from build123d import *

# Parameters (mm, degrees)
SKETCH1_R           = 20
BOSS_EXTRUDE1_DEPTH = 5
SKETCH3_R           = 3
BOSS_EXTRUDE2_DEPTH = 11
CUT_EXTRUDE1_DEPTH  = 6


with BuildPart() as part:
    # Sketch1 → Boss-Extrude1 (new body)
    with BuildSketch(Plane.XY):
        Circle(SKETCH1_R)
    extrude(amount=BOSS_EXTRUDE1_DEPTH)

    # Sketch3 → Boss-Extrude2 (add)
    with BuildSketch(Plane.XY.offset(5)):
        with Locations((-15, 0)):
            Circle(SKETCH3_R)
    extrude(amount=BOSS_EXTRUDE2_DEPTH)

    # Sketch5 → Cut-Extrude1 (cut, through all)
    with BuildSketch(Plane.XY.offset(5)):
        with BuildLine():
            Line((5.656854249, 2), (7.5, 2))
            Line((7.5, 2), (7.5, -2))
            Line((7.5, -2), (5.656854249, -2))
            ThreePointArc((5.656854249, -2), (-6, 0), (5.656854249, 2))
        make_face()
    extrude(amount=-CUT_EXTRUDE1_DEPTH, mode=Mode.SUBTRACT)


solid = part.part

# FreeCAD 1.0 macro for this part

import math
import FreeCAD as App
import Part
import Sketcher

V = App.Vector
Q = App.Units.Quantity

doc = App.newDocument("Part")
body = doc.addObject("PartDesign::Body", "Body")

sketch1 = doc.addObject("Sketcher::SketchObject", "Sketch")
body.addObject(sketch1)
sketch1.AttachmentSupport = (doc.XY_Plane, [""])
sketch1.MapMode = "FlatFace"
sketch1.addGeometry(Part.Circle(V(0, 0, 0), V(0, 0, 1), 20), False)
sketch1.addConstraint(Sketcher.Constraint("Coincident", 0, 3, -1, 1))
sketch1.addConstraint(Sketcher.Constraint("Diameter", 0, Q("40 mm")))
pad1 = doc.addObject("PartDesign::Pad", "Pad")
body.addObject(pad1)
pad1.Profile = sketch1
pad1.Length = 5

sketch2 = doc.addObject("Sketcher::SketchObject", "Sketch001")
body.addObject(sketch2)
sketch2.AttachmentSupport = (doc.XY_Plane, [""])
sketch2.MapMode = "FlatFace"
sketch2.AttachmentOffset = App.Placement(V(0, 0, 5), App.Rotation())
sketch2.addGeometry(Part.Circle(V(-15, 0, 0), V(0, 0, 1), 3), False)
sketch2.addConstraint(Sketcher.Constraint("PointOnObject", 0, 3, -1))
sketch2.addConstraint(Sketcher.Constraint("Diameter", 0, Q("6 mm")))
sketch2.addConstraint(Sketcher.Constraint("DistanceX", 0, 3, -1, 1, Q("15 mm")))
pad2 = doc.addObject("PartDesign::Pad", "Pad001")
body.addObject(pad2)
pad2.Profile = sketch2
pad2.Length = 11

sketch3 = doc.addObject("Sketcher::SketchObject", "Sketch002")
body.addObject(sketch3)
sketch3.AttachmentSupport = (doc.XY_Plane, [""])
sketch3.MapMode = "FlatFace"
sketch3.AttachmentOffset = App.Placement(V(0, 0, 5), App.Rotation())
sketch3.addGeometry(Part.LineSegment(V(7.5, 2, 0), V(5.656854, 2, 0)), False)
sketch3.addGeometry(Part.ArcOfCircle(Part.Circle(V(0, 0, 0), V(0, 0, 1), 6), math.radians(19.471221), math.radians(340.528779)), False)
sketch3.addGeometry(Part.LineSegment(V(5.656854, -2, 0), V(7.5, -2, 0)), False)
sketch3.addGeometry(Part.LineSegment(V(7.5, -2, 0), V(7.5, 2, 0)), False)
sketch3.addConstraint(Sketcher.Constraint("Coincident", 0, 2, 1, 1))
sketch3.addConstraint(Sketcher.Constraint("Coincident", 1, 2, 2, 1))
sketch3.addConstraint(Sketcher.Constraint("Coincident", 2, 2, 3, 1))
sketch3.addConstraint(Sketcher.Constraint("Coincident", 3, 2, 0, 1))
sketch3.addConstraint(Sketcher.Constraint("Horizontal", 0))
sketch3.addConstraint(Sketcher.Constraint("Horizontal", 2))
sketch3.addConstraint(Sketcher.Constraint("Vertical", 3))
sketch3.addConstraint(Sketcher.Constraint("Coincident", 1, 3, -1, 1))
sketch3.addConstraint(Sketcher.Constraint("Vertical", 0, 2, 1, 2))
sketch3.addConstraint(Sketcher.Constraint("Radius", 1, Q("6 mm")))
sketch3.addConstraint(Sketcher.Constraint("DistanceY", 3, 1, 3, 2, Q("4 mm")))
sketch3.addConstraint(Sketcher.Constraint("DistanceX", -1, 1, 2, 2, Q("7.5 mm")))
pocket1 = doc.addObject("PartDesign::Pocket", "Pocket")
body.addObject(pocket1)
pocket1.Profile = sketch3
pocket1.Type = "ThroughAll"

doc.recompute()
